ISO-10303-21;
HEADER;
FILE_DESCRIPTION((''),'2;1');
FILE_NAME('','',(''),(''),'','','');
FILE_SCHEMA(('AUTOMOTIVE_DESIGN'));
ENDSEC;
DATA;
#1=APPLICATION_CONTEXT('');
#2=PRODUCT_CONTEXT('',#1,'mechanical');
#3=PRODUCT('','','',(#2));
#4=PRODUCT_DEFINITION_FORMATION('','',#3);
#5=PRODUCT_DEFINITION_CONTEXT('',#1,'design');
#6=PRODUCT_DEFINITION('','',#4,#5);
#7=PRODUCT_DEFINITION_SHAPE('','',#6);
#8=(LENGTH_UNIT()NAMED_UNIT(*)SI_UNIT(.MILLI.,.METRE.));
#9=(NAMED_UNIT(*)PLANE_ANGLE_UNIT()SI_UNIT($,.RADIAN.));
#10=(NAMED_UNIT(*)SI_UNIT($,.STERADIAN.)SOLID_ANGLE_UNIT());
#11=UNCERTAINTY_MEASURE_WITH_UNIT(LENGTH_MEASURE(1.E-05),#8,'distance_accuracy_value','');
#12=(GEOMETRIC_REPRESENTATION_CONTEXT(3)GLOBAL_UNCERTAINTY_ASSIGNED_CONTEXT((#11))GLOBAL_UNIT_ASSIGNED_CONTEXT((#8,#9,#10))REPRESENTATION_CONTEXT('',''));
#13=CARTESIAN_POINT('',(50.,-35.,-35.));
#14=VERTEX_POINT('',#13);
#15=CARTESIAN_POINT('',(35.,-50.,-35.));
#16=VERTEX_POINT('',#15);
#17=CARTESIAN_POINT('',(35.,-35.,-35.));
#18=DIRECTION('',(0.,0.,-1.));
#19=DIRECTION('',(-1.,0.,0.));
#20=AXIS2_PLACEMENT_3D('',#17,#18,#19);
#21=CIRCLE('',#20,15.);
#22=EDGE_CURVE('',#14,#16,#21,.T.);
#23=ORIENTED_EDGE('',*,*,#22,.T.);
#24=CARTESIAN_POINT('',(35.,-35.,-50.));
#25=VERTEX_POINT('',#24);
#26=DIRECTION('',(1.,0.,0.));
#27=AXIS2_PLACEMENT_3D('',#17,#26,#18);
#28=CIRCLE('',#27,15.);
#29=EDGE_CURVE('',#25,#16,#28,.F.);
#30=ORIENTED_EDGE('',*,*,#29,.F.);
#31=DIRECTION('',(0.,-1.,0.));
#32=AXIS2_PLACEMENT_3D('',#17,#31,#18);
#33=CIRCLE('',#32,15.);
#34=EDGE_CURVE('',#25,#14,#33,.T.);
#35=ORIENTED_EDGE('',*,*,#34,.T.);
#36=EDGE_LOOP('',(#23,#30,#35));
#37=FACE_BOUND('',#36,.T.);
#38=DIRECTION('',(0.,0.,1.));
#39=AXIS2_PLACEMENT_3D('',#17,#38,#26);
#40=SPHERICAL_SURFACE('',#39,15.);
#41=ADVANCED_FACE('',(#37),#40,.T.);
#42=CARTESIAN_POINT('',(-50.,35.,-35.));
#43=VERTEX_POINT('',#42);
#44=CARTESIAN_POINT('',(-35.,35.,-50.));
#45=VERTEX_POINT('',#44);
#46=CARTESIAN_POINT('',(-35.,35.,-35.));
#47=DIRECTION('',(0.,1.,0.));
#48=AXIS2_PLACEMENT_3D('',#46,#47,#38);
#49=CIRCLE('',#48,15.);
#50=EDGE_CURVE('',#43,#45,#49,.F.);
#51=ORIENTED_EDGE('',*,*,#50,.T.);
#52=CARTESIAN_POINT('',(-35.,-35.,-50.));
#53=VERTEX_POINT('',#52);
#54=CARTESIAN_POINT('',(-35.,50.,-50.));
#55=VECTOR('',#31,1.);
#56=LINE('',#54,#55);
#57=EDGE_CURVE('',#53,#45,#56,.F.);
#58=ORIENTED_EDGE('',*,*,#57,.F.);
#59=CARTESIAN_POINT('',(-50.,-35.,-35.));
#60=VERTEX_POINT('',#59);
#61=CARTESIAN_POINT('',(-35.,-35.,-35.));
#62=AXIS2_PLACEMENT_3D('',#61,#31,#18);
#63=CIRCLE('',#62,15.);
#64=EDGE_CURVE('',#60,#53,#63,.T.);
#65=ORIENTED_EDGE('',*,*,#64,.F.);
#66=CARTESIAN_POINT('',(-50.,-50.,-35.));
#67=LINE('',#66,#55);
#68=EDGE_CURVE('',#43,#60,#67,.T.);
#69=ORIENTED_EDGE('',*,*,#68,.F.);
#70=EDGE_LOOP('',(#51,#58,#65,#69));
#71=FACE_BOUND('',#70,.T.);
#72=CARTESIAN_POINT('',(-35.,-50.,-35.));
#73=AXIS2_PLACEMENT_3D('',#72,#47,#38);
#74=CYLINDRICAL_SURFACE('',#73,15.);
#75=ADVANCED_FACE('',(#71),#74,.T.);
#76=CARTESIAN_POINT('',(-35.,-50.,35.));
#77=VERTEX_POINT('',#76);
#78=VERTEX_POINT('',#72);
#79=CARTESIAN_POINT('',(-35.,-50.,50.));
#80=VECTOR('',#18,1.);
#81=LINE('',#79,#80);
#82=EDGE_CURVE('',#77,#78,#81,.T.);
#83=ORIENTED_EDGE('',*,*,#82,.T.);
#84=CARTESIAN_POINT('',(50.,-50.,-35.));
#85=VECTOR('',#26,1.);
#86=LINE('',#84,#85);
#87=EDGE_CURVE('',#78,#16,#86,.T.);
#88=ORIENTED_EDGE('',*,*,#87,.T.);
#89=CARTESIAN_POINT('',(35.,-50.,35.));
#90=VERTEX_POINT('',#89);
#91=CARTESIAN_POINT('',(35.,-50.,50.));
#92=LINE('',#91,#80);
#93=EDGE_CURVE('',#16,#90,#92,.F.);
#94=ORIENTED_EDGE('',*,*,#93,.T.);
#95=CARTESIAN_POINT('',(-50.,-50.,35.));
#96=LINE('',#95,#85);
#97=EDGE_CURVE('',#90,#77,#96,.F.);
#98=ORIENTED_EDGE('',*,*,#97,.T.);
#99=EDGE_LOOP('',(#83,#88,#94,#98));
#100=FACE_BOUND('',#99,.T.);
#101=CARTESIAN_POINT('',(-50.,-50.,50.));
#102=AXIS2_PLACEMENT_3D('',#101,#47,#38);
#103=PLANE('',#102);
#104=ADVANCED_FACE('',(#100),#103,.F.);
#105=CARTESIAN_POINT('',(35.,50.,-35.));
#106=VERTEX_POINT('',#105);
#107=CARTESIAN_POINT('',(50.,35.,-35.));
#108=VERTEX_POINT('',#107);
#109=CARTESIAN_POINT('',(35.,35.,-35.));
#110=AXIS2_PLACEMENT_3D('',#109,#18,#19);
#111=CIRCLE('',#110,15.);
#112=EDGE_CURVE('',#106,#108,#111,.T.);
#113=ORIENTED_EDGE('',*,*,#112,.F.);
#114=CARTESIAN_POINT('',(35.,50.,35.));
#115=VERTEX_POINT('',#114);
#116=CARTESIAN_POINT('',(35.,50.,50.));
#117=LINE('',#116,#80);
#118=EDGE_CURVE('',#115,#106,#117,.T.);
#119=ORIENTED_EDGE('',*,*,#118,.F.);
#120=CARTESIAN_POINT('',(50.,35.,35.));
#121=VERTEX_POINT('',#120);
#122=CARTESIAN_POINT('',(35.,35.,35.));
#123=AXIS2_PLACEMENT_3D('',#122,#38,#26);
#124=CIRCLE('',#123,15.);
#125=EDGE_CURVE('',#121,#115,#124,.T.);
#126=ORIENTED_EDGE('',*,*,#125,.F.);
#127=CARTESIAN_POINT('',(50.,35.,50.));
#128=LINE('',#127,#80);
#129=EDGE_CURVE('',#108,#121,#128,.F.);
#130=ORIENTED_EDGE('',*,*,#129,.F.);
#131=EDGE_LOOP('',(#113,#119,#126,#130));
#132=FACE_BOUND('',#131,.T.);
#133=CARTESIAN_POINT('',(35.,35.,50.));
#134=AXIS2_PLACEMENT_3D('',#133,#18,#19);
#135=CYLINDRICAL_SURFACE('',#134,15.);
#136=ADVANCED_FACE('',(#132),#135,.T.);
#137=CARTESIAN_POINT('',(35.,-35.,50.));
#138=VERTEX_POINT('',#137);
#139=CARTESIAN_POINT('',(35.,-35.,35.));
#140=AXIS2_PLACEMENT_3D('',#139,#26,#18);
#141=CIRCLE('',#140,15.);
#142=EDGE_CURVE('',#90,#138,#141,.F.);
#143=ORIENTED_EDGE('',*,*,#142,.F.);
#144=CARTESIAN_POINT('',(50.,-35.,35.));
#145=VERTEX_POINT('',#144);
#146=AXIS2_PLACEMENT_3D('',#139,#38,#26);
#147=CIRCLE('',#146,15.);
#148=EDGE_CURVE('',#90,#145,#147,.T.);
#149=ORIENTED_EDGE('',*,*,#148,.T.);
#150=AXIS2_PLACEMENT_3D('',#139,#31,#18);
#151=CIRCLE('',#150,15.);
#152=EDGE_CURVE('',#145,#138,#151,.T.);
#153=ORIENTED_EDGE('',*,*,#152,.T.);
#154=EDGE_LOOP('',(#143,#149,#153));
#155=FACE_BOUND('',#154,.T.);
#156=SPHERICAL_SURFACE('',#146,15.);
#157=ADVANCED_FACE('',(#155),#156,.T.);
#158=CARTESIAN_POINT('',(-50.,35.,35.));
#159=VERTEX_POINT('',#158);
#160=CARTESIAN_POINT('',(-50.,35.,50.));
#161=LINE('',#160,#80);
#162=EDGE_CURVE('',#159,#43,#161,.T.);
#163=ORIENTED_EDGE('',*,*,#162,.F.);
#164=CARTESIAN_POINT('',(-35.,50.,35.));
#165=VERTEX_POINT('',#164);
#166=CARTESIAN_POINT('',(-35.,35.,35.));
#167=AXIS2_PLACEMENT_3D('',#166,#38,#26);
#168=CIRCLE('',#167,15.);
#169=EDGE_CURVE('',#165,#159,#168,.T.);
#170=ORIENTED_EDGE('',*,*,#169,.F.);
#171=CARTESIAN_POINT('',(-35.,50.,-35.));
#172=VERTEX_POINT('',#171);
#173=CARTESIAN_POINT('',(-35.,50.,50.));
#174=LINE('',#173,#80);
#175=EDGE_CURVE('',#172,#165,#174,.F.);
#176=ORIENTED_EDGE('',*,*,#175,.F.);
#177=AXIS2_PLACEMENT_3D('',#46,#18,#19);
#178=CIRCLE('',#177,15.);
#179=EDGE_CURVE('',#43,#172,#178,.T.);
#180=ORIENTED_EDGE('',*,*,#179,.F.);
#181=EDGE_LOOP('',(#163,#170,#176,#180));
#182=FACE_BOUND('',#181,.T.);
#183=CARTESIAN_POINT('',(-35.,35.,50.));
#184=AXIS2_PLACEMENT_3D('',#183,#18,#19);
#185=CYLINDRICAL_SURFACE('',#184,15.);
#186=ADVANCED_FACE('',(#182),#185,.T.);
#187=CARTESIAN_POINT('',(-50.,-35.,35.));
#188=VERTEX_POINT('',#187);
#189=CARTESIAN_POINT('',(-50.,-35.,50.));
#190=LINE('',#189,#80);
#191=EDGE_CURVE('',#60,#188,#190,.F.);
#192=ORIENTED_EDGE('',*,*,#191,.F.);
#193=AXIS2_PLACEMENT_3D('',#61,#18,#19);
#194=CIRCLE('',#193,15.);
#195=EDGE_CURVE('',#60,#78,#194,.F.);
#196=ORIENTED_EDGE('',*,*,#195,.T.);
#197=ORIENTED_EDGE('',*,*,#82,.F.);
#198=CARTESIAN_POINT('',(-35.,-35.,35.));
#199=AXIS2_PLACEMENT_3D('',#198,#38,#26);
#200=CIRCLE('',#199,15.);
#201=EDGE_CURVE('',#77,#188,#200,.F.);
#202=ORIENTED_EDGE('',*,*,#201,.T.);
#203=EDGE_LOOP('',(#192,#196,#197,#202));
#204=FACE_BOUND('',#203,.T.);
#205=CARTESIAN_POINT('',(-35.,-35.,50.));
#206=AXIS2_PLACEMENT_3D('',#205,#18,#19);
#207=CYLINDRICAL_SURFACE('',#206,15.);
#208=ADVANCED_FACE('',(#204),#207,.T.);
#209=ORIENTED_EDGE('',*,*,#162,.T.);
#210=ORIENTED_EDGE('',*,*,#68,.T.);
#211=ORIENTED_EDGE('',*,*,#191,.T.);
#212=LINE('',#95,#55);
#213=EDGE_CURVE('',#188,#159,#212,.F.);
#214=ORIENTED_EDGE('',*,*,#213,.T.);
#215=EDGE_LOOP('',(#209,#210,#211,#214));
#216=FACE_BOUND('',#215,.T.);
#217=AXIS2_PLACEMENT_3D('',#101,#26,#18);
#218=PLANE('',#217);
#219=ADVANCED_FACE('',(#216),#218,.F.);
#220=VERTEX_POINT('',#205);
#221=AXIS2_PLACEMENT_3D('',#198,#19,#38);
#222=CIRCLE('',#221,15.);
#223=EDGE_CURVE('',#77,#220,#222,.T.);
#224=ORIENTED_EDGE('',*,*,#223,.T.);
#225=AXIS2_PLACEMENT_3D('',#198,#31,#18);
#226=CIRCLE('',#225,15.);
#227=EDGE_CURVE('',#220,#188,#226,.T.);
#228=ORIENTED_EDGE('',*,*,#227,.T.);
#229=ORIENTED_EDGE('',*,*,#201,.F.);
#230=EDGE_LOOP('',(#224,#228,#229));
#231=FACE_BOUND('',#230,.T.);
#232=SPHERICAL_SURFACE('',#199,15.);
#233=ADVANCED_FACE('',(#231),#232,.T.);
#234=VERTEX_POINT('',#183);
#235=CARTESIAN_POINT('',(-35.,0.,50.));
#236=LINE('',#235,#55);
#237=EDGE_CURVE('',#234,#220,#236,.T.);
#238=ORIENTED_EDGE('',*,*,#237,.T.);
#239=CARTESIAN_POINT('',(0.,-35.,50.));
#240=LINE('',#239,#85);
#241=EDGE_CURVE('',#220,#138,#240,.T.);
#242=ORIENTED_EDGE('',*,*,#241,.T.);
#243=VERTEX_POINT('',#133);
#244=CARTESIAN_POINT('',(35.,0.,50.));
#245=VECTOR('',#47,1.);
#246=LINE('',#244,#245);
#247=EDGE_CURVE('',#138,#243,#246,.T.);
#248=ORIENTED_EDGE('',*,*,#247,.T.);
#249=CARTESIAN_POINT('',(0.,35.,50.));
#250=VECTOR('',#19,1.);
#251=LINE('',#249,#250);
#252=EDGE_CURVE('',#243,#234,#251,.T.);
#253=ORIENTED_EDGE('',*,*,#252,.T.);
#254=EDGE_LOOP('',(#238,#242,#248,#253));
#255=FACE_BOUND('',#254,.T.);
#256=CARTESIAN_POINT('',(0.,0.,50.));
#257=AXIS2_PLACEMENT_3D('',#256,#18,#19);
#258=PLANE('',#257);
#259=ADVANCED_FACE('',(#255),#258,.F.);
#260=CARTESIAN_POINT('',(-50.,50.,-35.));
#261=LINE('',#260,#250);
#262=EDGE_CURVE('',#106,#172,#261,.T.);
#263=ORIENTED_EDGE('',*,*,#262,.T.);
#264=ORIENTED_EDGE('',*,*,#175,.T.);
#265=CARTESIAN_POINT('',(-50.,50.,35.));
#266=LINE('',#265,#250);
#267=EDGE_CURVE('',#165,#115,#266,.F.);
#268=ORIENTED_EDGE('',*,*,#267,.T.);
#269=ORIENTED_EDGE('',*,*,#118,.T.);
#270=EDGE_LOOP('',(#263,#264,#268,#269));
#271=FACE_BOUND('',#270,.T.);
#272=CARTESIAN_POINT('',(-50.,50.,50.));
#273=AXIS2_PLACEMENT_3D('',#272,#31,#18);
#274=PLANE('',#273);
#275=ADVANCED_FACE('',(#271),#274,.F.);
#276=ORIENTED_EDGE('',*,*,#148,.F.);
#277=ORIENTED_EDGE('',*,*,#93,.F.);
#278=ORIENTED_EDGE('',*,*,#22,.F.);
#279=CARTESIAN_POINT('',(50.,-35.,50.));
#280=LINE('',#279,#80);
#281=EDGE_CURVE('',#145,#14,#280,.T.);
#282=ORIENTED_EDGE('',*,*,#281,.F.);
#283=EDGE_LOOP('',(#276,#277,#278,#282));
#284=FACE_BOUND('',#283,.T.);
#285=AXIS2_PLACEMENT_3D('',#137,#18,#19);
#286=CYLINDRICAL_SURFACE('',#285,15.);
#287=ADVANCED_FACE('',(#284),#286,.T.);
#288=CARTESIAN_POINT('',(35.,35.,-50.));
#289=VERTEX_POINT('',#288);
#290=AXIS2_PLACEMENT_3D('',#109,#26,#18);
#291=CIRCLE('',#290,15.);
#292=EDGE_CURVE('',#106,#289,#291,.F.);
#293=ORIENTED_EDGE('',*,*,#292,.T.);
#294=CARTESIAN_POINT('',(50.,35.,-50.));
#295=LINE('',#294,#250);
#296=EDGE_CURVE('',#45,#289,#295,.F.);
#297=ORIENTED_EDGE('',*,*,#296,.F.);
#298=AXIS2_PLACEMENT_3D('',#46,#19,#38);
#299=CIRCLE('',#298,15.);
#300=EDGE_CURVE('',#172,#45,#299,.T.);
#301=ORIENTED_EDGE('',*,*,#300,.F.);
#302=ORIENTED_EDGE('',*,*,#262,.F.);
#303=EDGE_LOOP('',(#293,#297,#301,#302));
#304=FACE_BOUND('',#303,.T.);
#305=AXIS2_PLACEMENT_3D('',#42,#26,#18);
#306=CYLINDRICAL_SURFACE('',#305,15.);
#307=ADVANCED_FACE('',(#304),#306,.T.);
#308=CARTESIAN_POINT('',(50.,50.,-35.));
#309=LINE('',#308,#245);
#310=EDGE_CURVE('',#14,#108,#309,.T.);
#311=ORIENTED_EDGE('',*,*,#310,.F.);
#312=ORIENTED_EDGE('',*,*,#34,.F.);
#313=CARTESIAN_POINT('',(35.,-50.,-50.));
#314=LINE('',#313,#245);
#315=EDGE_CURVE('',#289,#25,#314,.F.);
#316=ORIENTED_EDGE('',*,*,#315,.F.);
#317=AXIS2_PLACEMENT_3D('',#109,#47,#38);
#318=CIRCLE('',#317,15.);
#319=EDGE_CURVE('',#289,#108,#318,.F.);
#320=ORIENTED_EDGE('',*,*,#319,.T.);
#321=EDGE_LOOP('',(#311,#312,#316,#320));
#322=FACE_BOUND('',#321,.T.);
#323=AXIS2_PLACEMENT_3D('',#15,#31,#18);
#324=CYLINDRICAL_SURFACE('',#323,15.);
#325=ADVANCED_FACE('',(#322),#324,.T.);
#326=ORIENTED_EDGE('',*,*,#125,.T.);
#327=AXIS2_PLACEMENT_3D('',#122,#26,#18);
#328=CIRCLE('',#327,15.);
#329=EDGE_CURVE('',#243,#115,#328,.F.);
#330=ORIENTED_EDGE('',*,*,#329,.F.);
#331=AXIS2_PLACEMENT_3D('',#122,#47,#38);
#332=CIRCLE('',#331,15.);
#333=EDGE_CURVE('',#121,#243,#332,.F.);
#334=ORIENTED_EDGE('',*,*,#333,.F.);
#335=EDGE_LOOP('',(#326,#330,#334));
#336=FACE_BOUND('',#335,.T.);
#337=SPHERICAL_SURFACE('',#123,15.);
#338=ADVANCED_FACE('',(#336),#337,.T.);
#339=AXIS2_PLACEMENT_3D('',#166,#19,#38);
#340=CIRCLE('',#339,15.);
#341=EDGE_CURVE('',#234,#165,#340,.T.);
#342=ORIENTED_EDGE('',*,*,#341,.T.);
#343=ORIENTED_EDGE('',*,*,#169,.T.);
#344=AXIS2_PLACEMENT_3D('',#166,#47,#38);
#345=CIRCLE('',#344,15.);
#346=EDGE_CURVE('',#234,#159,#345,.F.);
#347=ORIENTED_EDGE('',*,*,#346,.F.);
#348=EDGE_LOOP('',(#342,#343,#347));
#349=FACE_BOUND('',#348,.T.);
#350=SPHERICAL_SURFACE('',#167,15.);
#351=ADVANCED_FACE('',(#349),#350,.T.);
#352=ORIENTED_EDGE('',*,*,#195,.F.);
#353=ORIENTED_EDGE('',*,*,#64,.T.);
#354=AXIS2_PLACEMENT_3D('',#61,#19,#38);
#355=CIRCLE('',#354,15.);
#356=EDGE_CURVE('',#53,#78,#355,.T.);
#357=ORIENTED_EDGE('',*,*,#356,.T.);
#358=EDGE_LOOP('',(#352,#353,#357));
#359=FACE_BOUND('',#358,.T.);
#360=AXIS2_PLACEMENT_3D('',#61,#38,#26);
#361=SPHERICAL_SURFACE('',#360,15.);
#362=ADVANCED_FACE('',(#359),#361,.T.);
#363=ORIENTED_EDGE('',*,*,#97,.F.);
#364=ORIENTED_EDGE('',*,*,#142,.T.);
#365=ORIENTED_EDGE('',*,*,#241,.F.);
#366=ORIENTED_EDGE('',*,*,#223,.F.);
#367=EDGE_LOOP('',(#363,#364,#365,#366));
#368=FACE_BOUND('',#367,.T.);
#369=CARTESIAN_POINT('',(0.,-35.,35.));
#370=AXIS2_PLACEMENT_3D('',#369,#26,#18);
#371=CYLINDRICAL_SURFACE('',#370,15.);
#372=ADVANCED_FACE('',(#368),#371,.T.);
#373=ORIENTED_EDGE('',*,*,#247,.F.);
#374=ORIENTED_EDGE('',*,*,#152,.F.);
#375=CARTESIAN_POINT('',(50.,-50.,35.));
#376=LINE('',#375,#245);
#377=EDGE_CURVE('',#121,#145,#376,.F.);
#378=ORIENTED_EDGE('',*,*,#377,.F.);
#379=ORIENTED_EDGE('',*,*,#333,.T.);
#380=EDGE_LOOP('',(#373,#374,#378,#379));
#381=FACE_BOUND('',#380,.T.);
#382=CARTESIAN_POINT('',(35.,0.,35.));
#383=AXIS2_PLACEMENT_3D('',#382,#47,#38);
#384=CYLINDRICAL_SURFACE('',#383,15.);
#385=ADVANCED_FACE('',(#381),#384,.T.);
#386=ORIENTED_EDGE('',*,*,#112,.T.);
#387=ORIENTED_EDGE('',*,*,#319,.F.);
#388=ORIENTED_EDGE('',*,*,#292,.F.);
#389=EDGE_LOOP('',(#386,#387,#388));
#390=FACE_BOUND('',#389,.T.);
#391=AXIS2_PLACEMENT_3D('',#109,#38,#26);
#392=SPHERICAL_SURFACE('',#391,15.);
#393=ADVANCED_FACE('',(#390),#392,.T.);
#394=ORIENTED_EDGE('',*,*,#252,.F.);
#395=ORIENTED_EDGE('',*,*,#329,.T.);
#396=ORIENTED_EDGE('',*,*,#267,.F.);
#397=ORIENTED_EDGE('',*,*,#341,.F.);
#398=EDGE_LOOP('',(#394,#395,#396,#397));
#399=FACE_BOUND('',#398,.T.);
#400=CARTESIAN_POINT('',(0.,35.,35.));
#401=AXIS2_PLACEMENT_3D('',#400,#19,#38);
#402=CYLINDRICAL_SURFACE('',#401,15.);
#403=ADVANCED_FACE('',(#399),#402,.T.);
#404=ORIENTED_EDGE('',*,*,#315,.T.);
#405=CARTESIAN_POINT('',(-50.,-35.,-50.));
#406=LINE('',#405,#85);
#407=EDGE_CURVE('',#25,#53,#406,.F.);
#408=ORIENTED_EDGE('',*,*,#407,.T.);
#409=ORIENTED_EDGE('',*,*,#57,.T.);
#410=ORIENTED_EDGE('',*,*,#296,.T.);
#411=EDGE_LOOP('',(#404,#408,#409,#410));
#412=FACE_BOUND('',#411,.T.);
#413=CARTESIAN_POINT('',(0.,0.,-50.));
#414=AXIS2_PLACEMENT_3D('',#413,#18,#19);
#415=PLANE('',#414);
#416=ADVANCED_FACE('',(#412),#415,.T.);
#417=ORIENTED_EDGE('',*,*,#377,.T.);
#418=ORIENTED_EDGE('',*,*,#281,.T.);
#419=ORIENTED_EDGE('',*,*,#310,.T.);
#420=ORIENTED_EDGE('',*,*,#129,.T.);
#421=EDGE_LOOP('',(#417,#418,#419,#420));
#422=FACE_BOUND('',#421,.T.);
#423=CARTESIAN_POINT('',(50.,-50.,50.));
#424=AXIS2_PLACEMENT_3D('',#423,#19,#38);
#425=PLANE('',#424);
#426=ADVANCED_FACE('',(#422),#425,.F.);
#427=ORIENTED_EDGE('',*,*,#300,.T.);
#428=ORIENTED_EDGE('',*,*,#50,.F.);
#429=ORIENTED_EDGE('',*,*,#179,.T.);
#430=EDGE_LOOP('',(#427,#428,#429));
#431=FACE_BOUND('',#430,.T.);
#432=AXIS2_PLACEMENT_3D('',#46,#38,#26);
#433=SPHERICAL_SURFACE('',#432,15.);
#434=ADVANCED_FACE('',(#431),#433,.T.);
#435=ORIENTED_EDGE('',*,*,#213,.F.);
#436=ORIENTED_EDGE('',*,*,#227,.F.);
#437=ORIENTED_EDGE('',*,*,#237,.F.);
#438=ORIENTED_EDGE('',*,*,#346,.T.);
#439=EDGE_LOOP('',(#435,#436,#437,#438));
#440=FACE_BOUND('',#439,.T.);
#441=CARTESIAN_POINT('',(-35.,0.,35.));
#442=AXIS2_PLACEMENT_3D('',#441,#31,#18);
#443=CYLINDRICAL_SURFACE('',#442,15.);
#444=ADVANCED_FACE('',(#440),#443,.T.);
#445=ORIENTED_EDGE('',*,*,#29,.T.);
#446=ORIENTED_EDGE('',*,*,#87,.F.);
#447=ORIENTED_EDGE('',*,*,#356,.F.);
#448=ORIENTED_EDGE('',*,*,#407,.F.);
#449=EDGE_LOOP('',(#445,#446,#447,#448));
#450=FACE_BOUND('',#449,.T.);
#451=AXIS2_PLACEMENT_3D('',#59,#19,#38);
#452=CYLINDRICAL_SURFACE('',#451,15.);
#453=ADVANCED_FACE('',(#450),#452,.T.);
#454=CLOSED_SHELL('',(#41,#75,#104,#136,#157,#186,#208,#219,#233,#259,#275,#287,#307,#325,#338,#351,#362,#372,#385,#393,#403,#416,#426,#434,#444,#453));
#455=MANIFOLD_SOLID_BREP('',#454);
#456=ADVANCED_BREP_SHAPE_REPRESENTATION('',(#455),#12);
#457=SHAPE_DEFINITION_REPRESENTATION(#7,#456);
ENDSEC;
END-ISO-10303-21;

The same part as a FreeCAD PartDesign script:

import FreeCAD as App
import Part
import Sketcher

V = App.Vector

doc = App.newDocument("Part")
body = doc.addObject("PartDesign::Body", "Body")

# Sketch on XY plane
sketch1 = body.newObject("Sketcher::SketchObject", "Sketch")
sketch1.AttachmentSupport = (doc.getObject("XY_Plane"), [""])
sketch1.MapMode = "FlatFace"
sketch1.addGeometry([
    Part.LineSegment(V(-50, 50, 0), V(-50, -50, 0)),
    Part.LineSegment(V(-50, -50, 0), V(50, -50, 0)),
    Part.LineSegment(V(50, -50, 0), V(50, 50, 0)),
    Part.LineSegment(V(50, 50, 0), V(-50, 50, 0)),
], False)
sketch1.addConstraint([
    Sketcher.Constraint("Coincident", 0, 2, 1, 1),
    Sketcher.Constraint("Coincident", 1, 2, 2, 1),
    Sketcher.Constraint("Coincident", 2, 2, 3, 1),
    Sketcher.Constraint("Coincident", 3, 2, 0, 1),
    Sketcher.Constraint("Vertical", 0),
    Sketcher.Constraint("Horizontal", 1),
    Sketcher.Constraint("Vertical", 2),
    Sketcher.Constraint("Horizontal", 3),
    Sketcher.Constraint("Symmetric", 0, 2, 2, 2, -1, 1),
    Sketcher.Constraint("Equal", 3, 0),
    Sketcher.Constraint("DistanceX", 1, 1, 1, 2, 100.0),
])
pad1 = body.newObject("PartDesign::Pad", "Pad")
pad1.Profile = sketch1
pad1.Length = 100
pad1.Midplane = True
doc.recompute()

fillet = body.newObject("PartDesign::Fillet", "Fillet")
fillet.Base = (pad1, ["Edge1"])
fillet.UseAllEdges = True
fillet.Radius = 15

doc.recompute()
